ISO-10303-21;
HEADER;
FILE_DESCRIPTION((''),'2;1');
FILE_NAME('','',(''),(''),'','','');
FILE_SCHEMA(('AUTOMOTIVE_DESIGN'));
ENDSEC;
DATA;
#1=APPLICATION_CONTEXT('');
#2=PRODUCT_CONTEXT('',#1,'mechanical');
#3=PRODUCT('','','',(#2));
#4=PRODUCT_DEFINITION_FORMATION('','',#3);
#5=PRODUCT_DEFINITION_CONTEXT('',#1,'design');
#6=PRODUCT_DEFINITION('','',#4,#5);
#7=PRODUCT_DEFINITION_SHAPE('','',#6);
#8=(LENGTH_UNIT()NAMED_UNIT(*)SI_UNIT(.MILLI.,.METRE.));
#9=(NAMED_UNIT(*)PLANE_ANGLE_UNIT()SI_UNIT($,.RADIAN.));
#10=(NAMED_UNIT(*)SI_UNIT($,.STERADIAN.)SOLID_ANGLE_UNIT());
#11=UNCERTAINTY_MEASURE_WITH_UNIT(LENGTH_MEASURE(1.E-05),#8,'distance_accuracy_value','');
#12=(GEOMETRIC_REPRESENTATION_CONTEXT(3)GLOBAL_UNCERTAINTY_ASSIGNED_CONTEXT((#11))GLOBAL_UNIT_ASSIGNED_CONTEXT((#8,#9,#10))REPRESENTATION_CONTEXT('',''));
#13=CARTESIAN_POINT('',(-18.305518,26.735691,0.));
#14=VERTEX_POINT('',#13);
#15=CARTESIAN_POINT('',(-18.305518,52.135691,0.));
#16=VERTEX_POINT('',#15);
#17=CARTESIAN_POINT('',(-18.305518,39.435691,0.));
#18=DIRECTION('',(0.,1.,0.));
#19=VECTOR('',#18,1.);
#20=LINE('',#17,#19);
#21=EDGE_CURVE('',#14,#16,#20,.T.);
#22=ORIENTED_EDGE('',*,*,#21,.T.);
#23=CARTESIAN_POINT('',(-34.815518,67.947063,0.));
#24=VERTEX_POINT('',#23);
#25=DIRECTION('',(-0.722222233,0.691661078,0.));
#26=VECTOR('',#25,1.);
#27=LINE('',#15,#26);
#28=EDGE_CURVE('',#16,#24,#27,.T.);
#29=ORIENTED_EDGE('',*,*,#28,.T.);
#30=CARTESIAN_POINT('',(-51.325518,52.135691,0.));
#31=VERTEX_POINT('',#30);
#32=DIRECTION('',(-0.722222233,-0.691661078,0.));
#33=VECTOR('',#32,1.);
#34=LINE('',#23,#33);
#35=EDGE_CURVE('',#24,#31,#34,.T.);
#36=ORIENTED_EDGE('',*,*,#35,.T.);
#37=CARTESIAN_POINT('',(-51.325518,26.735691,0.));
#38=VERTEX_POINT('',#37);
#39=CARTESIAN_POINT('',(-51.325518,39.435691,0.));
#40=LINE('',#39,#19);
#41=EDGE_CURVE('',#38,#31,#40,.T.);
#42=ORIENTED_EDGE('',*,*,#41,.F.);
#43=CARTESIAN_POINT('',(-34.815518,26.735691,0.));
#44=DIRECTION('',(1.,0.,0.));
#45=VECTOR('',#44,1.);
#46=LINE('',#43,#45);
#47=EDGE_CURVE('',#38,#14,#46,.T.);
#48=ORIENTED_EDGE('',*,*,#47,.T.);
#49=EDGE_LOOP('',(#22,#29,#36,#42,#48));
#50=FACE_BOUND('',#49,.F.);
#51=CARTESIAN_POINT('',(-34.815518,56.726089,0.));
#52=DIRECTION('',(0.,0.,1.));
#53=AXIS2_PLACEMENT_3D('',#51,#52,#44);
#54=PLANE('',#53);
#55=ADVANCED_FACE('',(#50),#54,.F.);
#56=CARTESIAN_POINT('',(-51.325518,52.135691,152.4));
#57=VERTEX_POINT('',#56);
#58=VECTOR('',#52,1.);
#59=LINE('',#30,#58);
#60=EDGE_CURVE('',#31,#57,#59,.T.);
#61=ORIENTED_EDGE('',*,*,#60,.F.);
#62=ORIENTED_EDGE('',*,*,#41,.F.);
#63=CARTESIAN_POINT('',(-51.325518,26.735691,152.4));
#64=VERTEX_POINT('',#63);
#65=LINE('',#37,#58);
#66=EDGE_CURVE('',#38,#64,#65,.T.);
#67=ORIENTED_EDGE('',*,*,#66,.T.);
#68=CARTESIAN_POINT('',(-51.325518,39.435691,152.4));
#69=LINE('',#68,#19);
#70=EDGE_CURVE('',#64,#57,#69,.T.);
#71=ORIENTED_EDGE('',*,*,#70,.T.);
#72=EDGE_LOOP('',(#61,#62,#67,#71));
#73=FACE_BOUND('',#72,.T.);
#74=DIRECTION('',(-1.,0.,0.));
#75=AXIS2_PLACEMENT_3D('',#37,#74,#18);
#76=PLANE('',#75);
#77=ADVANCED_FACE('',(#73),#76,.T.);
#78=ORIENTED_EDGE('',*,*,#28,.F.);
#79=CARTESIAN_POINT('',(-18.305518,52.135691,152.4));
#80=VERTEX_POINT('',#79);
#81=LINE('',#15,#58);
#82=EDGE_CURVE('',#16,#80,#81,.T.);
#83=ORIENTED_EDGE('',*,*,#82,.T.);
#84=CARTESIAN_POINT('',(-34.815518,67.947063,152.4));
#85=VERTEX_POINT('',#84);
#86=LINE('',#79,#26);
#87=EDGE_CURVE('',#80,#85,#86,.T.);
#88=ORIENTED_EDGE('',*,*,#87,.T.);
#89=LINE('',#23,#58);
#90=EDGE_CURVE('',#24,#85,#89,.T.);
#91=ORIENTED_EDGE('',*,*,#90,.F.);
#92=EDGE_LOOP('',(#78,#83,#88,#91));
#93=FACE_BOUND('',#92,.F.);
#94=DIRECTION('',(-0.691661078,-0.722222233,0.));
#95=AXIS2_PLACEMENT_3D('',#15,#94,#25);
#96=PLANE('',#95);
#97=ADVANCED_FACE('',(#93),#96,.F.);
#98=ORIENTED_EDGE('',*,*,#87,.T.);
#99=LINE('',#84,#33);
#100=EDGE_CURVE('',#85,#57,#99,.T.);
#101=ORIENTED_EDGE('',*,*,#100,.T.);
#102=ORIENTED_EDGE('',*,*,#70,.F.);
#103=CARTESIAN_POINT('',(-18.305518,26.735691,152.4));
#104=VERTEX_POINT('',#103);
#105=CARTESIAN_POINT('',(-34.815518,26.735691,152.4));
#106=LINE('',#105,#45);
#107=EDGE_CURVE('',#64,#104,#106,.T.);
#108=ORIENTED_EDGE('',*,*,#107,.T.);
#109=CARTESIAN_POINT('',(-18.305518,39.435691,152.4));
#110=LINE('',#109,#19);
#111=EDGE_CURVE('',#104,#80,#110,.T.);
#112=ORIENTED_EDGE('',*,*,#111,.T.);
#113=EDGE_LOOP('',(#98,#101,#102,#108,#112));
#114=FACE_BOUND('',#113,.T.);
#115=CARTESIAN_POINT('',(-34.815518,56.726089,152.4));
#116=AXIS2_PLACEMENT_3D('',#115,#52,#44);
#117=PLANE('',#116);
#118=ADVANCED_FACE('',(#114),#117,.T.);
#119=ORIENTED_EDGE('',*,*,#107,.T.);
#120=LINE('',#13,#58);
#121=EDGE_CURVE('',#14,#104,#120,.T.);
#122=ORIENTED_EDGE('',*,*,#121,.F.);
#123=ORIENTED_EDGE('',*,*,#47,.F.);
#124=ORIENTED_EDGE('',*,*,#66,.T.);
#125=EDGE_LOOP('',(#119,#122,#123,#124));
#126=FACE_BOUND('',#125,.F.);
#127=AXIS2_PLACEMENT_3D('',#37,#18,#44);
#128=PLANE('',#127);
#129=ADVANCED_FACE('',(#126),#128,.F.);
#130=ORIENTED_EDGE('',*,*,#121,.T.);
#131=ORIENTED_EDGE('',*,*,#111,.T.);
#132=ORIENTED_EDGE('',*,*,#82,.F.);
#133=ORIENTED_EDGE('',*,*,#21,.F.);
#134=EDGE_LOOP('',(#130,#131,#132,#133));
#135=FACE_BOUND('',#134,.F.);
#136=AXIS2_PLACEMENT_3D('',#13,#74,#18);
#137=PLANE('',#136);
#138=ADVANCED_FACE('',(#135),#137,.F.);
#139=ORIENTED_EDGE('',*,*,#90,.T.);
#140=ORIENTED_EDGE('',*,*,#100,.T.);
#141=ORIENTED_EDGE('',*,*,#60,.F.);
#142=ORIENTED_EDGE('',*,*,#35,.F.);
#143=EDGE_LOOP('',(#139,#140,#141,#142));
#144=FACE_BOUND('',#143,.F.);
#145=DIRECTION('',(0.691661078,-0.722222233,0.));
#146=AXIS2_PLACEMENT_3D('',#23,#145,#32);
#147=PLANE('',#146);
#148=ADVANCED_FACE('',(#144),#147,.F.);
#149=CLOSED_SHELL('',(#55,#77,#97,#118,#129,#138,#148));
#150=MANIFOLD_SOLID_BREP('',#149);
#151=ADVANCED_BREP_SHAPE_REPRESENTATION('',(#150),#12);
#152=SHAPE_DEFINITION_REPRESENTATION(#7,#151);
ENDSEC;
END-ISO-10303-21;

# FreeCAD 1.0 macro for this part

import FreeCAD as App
import Part
import Sketcher
from FreeCAD import Vector
Q = App.Units.Quantity


def add_polygon(sketch, points):
    """Adds a closed chain of lines whose ends are joined by coincident constraints."""
    first, n = sketch.GeometryCount, len(points)
    for a, b in zip(points, points[1:] + points[:1]):
        sketch.addGeometry(Part.LineSegment(App.Vector(*a, 0), App.Vector(*b, 0)), False)
    for i in range(n):
        sketch.addConstraint(Sketcher.Constraint("Coincident", first + i, 2, first + (i + 1) % n, 1))

doc = App.newDocument("Part")
params = doc.addObject("Spreadsheet::Sheet", "Params")
for row, (alias, value) in enumerate([
    ("sketch1_height", "1 in"),
    ("sketch1_width", "1.3 in"),
    ("sketch1_length", "0.9 in"),
    ("pad1_length", "6 in"),
], start=1):
    params.set(f"A{row}", alias)
    params.set(f"B{row}", "=" + value)
    params.setAlias(f"B{row}", alias)

body = doc.addObject("PartDesign::Body", "Body")

# Sketch on XY plane
sketch1 = body.newObject("Sketcher::SketchObject", "Sketch")
sketch1.AttachmentSupport = (doc.getObject("XY_Plane"), [""])
sketch1.MapMode = "FlatFace"
add_polygon(sketch1, [(-18.305518, 52.135691), (-34.815518, 67.947063), (-51.325518, 52.135691), (-51.325518, 26.735691), (-18.305518, 26.735691)])  # lines 0-4
sketch1.addConstraint([
    Sketcher.Constraint("Vertical", 2),
    Sketcher.Constraint("Horizontal", 3),
    Sketcher.Constraint("Vertical", 4),
    Sketcher.Constraint("Horizontal", 1, 2, 4, 2),
    Sketcher.Constraint("Equal", 0, 1),
    Sketcher.Constraint("DistanceY", 2, 2, 2, 1, Q("1 in")),
    Sketcher.Constraint("DistanceX", 3, 1, 3, 2, Q("1.3 in")),
    Sketcher.Constraint("Distance", 0, Q("0.9 in")),
    Sketcher.Constraint("DistanceX", 1, 2, -1, 1, Q("51.325518 mm")),
    Sketcher.Constraint("DistanceY", -1, 1, 1, 2, Q("52.135691 mm")),
])
sketch1.setExpression("Constraints[10]", "Params.sketch1_height")
sketch1.setExpression("Constraints[11]", "Params.sketch1_width")
sketch1.setExpression("Constraints[12]", "Params.sketch1_length")
pad1 = body.newObject("PartDesign::Pad", "Pad")
pad1.Profile = sketch1
pad1.setExpression("Length", "Params.pad1_length")

doc.recompute()
